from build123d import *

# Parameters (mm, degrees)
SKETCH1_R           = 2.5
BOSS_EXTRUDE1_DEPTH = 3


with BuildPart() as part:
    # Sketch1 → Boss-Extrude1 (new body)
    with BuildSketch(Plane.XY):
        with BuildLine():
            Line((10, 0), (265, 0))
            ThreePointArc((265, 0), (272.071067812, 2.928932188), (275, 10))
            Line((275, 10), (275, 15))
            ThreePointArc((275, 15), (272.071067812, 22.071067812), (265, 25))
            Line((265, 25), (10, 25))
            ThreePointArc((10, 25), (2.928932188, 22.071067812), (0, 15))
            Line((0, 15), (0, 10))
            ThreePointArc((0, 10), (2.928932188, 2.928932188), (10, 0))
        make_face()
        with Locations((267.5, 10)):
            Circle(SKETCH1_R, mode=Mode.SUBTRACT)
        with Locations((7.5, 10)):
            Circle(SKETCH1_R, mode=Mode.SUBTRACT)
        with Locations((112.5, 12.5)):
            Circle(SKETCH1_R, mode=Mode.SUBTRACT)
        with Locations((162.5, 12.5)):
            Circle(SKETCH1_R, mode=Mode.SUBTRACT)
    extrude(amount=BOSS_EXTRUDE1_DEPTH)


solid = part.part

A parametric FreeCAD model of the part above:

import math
import FreeCAD as App
import Part
import Sketcher
from FreeCAD import Vector

doc = App.newDocument("Part")
body = doc.addObject("PartDesign::Body", "Body")

# Sketch on XY plane
sketch1 = body.newObject("Sketcher::SketchObject", "Sketch")
sketch1.AttachmentSupport = (doc.getObject("XY_Plane"), [""])
sketch1.MapMode = "FlatFace"
sketch1.addGeometry([
    Part.LineSegment(Vector(10, 0, 0), Vector(265, 0, 0)),  # 0
    Part.ArcOfCircle(Part.Circle(Vector(265, 10, 0), Vector(0, 0, 1), 10), math.radians(-90), math.radians(0)),  # 1
    Part.LineSegment(Vector(275, 10, 0), Vector(275, 15, 0)),  # 2
    Part.ArcOfCircle(Part.Circle(Vector(265, 15, 0), Vector(0, 0, 1), 10), math.radians(0), math.radians(90)),  # 3
    Part.LineSegment(Vector(265, 25, 0), Vector(10, 25, 0)),  # 4
    Part.ArcOfCircle(Part.Circle(Vector(10, 15, 0), Vector(0, 0, 1), 10), math.radians(90), math.radians(180)),  # 5
    Part.LineSegment(Vector(0, 15, 0), Vector(0, 10, 0)),  # 6
    Part.ArcOfCircle(Part.Circle(Vector(10, 10, 0), Vector(0, 0, 1), 10), math.radians(180), math.radians(270)),  # 7
    Part.Circle(Vector(7.5, 10, 0), Vector(0, 0, 1), 2.5),  # 8
    Part.Circle(Vector(267.5, 10, 0), Vector(0, 0, 1), 2.5),  # 9
    Part.Circle(Vector(112.5, 12.5, 0), Vector(0, 0, 1), 2.5),  # 10
    Part.Circle(Vector(162.5, 12.5, 0), Vector(0, 0, 1), 2.5),  # 11
], False)
sketch1.addConstraint([
    Sketcher.Constraint("Tangent", 0, 2, 1, 1),
    Sketcher.Constraint("Tangent", 1, 2, 2, 1),
    Sketcher.Constraint("Tangent", 2, 2, 3, 1),
    Sketcher.Constraint("Tangent", 3, 2, 4, 1),
    Sketcher.Constraint("Tangent", 4, 2, 5, 1),
    Sketcher.Constraint("Tangent", 5, 2, 6, 1),
    Sketcher.Constraint("Tangent", 6, 2, 7, 1),
    Sketcher.Constraint("Tangent", 7, 2, 0, 1),
    Sketcher.Constraint("Horizontal", 0),
    Sketcher.Constraint("Vertical", 2),
    Sketcher.Constraint("Horizontal", 4),
    Sketcher.Constraint("Vertical", 6),
    Sketcher.Constraint("Equal", 1, 3),
    Sketcher.Constraint("Equal", 3, 5),
    Sketcher.Constraint("Equal", 5, 7),
    Sketcher.Constraint("Equal", 8, 9),
    Sketcher.Constraint("Equal", 9, 10),
    Sketcher.Constraint("Equal", 10, 11),
    Sketcher.Constraint("PointOnObject", 0, 2, -1),
    Sketcher.Constraint("PointOnObject", 5, 2, -2),
    Sketcher.Constraint("Horizontal", 7, 3, 8, 3),
    Sketcher.Constraint("Horizontal", 8, 3, 9, 3),
    Sketcher.Constraint("Horizontal", 10, 3, 11, 3),
    Sketcher.Constraint("Diameter", 8, 5.0),
    Sketcher.Constraint("Radius", 1, 10.0),
    Sketcher.Constraint("DistanceX", 0, 1, 0, 2, 255.0),
    Sketcher.Constraint("DistanceY", 2, 1, 2, 2, 5.0),
    Sketcher.Constraint("DistanceX", 8, 3, 9, 3, 260.0),
    Sketcher.Constraint("DistanceX", 8, 3, 10, 3, 105.0),
    Sketcher.Constraint("DistanceX", 10, 3, 11, 3, 50.0),
    Sketcher.Constraint("DistanceX", -1, 1, 8, 3, 7.5),
    Sketcher.Constraint("DistanceY", -1, 1, 10, 3, 12.5),
])
pad1 = body.newObject("PartDesign::Pad", "Pad")
pad1.Profile = sketch1
pad1.Length = 3

doc.recompute()
